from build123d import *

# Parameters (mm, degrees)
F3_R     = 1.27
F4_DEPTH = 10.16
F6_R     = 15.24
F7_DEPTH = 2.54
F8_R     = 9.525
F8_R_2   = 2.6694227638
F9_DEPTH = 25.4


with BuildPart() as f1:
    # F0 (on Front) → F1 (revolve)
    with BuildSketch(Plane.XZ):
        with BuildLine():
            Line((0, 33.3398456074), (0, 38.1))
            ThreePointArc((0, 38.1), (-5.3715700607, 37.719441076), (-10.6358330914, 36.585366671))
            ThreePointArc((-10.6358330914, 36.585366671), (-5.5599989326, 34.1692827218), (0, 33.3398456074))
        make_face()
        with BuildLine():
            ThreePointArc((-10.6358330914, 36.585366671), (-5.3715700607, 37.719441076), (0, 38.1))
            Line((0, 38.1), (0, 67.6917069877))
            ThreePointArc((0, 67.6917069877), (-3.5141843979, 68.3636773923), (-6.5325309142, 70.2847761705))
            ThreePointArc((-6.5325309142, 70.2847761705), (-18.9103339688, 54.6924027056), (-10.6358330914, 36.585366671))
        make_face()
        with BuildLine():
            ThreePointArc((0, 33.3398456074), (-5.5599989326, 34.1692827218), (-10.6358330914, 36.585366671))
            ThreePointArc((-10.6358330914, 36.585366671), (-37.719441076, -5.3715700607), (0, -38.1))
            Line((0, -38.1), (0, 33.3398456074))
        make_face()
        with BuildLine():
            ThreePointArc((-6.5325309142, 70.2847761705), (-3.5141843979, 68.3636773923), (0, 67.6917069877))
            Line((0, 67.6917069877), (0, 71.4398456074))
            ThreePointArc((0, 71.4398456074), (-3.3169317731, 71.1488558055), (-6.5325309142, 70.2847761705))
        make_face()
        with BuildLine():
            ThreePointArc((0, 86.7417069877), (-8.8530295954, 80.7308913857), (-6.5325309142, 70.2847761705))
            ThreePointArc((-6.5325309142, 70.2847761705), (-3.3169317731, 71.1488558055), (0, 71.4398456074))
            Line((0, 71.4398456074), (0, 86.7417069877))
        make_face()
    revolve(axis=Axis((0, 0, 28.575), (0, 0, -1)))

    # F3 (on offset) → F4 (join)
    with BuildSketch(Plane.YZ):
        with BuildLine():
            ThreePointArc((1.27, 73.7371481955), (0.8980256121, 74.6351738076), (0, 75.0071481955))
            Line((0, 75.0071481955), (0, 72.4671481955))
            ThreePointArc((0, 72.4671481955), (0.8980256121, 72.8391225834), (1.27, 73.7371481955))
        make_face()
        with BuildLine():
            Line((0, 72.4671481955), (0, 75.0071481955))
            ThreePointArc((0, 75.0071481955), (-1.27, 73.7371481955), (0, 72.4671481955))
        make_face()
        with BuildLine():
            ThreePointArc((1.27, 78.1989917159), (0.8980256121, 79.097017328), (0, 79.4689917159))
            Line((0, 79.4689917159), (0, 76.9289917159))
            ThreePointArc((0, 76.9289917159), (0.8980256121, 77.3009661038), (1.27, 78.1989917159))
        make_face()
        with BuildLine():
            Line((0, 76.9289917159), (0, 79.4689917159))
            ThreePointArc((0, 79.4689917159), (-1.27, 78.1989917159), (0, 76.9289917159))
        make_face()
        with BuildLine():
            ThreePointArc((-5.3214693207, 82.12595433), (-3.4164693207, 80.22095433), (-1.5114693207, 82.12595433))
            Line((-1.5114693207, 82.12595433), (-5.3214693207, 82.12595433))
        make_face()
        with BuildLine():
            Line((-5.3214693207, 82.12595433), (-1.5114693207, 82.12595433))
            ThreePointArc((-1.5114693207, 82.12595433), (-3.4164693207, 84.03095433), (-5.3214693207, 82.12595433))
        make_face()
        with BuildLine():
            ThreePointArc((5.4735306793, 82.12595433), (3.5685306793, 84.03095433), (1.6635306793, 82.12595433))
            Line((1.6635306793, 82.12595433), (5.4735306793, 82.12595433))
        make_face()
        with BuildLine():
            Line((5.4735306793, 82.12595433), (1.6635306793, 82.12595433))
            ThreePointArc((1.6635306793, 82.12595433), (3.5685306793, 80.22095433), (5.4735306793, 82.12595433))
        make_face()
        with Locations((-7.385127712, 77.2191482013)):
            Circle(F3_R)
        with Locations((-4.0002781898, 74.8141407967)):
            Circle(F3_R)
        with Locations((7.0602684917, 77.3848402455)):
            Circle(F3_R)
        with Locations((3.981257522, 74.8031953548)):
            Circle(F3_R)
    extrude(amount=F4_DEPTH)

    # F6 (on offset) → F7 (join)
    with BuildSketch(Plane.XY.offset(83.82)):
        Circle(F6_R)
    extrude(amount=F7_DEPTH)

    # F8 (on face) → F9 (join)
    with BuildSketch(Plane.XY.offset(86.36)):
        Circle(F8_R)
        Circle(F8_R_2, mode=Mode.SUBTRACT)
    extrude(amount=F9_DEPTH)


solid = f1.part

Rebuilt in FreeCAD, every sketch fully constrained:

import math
import FreeCAD as App
import Part
import Sketcher

V = App.Vector
Q = App.Units.Quantity

doc = App.newDocument("Part")
params = doc.addObject("Spreadsheet::Sheet", "Params")
for row, (alias, value) in enumerate([
    ("sketch1_radius", "1.5 in"),
    ("sketch1_radius2", "0.75 in"),
    ("sketch1_radius3", "0.375 in"),
    ("revolution_angle", "360 deg"),
    ("sketch2_diameter", "0.1 in"),
    ("sketch2_diameter2", "0.15 in"),
    ("pad1_length", "0.4 in"),
    ("sketch3_diameter", "1.2 in"),
    ("pad2_length", "0.1 in"),
    ("sketch4_diameter", "0.75 in"),
    ("pad3_length", "1 in"),
], start=1):
    params.set(f"A{row}", alias)
    params.set(f"B{row}", "=" + value)
    params.setAlias(f"B{row}", alias)

body = doc.addObject("PartDesign::Body", "Body")

# Sketch on XZ plane
sketch1 = body.newObject("Sketcher::SketchObject", "Sketch")
sketch1.AttachmentSupport = (doc.getObject("XZ_Plane"), [""])
sketch1.MapMode = "FlatFace"
sketch1.addGeometry([
    Part.ArcOfCircle(Part.Circle(V(0, 52, 0), V(0, 0, 1), 19), math.radians(110), math.radians(236)),
    Part.ArcOfCircle(Part.Circle(V(0, 0, 0), V(0, 0, 1), 38), math.radians(106), math.radians(270)),
    Part.LineSegment(V(0, -38, 0), V(0, 87, 0)),
    Part.ArcOfCircle(Part.Circle(V(0, 77, 0), V(0, 0, 1), 10), math.radians(90), math.radians(227)),
], False)
sketch1.addConstraint([
    Sketcher.Constraint("Coincident", 0, 2, 1, 1),
    Sketcher.Constraint("Coincident", 1, 2, 2, 1),
    Sketcher.Constraint("Coincident", 2, 2, 3, 1),
    Sketcher.Constraint("Coincident", 3, 2, 0, 1),
    Sketcher.Constraint("Vertical", 2),
    Sketcher.Constraint("Coincident", 1, 3, -1, 1),
    Sketcher.Constraint("PointOnObject", 0, 3, -2),
    Sketcher.Constraint("PointOnObject", 3, 3, -2),
    Sketcher.Constraint("PointOnObject", 1, 2, -2),
    Sketcher.Constraint("Radius", 1, Q("1.5 in")),
    Sketcher.Constraint("Radius", 0, Q("0.75 in")),
    Sketcher.Constraint("Radius", 3, Q("0.375 in")),
    Sketcher.Constraint("DistanceY", 2, 1, 2, 2, 124.841707),
    Sketcher.Constraint("DistanceX", 3, 2, -1, 1, 6.532531),
])
sketch1.setExpression("Constraints[9]", "Params.sketch1_radius")
sketch1.setExpression("Constraints[10]", "Params.sketch1_radius2")
sketch1.setExpression("Constraints[11]", "Params.sketch1_radius3")
revolution = body.newObject("PartDesign::Revolution", "Revolution")
revolution.Profile = sketch1
revolution.ReferenceAxis = (sketch1, ["V_Axis"])
revolution.setExpression("Angle", "Params.revolution_angle")

# Sketch on YZ plane
sketch2 = body.newObject("Sketcher::SketchObject", "Sketch001")
sketch2.AttachmentSupport = (doc.getObject("YZ_Plane"), [""])
sketch2.MapMode = "FlatFace"
sketch2.addGeometry([
    Part.ArcOfCircle(Part.Circle(V(0, 73.7, 0), V(0, 0, 1), 1.3), math.radians(0), math.radians(90)),  # 0
    Part.ArcOfCircle(Part.Circle(V(0, 73.7, 0), V(0, 0, 1), 1.3), math.radians(90), math.radians(270)),  # 1
    Part.ArcOfCircle(Part.Circle(V(0, 73.7, 0), V(0, 0, 1), 1.3), math.radians(-90), math.radians(0)),  # 2
    Part.ArcOfCircle(Part.Circle(V(0, 78.2, 0), V(0, 0, 1), 1.3), math.radians(0), math.radians(90)),  # 3
    Part.ArcOfCircle(Part.Circle(V(0, 78.2, 0), V(0, 0, 1), 1.3), math.radians(90), math.radians(270)),  # 4
    Part.ArcOfCircle(Part.Circle(V(0, 78.2, 0), V(0, 0, 1), 1.3), math.radians(-90), math.radians(0)),  # 5
    Part.Circle(V(-3.4, 82.1, 0), V(0, 0, 1), 1.9),  # 6
    Part.Circle(V(3.6, 82.1, 0), V(0, 0, 1), 1.9),  # 7
    Part.Circle(V(-7.4, 77.2, 0), V(0, 0, 1), 1.3),  # 8
    Part.Circle(V(-4, 74.8, 0), V(0, 0, 1), 1.3),  # 9
    Part.Circle(V(7.1, 77.4, 0), V(0, 0, 1), 1.3),  # 10
    Part.Circle(V(4, 74.8, 0), V(0, 0, 1), 1.3),  # 11
], False)
sketch2.addConstraint([
    Sketcher.Constraint("Tangent", 0, 2, 1, 1),
    Sketcher.Constraint("Tangent", 1, 2, 2, 1),
    Sketcher.Constraint("Tangent", 2, 2, 0, 1),
    Sketcher.Constraint("Tangent", 3, 2, 4, 1),
    Sketcher.Constraint("Tangent", 4, 2, 5, 1),
    Sketcher.Constraint("Tangent", 5, 2, 3, 1),
    Sketcher.Constraint("Equal", 2, 3),
    Sketcher.Constraint("Equal", 6, 7),
    Sketcher.Constraint("Equal", 5, 8),
    Sketcher.Constraint("Equal", 8, 9),
    Sketcher.Constraint("Equal", 9, 10),
    Sketcher.Constraint("Equal", 10, 11),
    Sketcher.Constraint("PointOnObject", 0, 3, -2),
    Sketcher.Constraint("PointOnObject", 3, 3, -2),
    Sketcher.Constraint("PointOnObject", 0, 2, -2),
    Sketcher.Constraint("PointOnObject", 1, 2, -2),
    Sketcher.Constraint("PointOnObject", 3, 2, -2),
    Sketcher.Constraint("PointOnObject", 4, 2, -2),
    Sketcher.Constraint("Horizontal", 6, 3, 7, 3),
    Sketcher.Constraint("Horizontal", 1, 3, 2, 2),
    Sketcher.Constraint("Horizontal", 4, 3, 5, 2),
    Sketcher.Constraint("Diameter", 8, Q("0.1 in")),
    Sketcher.Constraint("Diameter", 6, Q("0.15 in")),
    Sketcher.Constraint("DistanceX", 6, 3, 7, 3, Q("0.275 in")),
    Sketcher.Constraint("DistanceY", 2, 3, 8, 3, 3.482),
    Sketcher.Constraint("DistanceY", -1, 1, 0, 3, 73.737148),
    Sketcher.Constraint("DistanceY", -1, 1, 3, 3, 78.198992),
    Sketcher.Constraint("DistanceX", 6, 3, -1, 1, 3.416469),
    Sketcher.Constraint("DistanceX", 9, 3, -1, 1, 4.000278),
    Sketcher.Constraint("DistanceY", -1, 1, 9, 3, 74.814141),
    Sketcher.Constraint("DistanceX", -1, 1, 10, 3, 7.060268),
    Sketcher.Constraint("DistanceY", -1, 1, 10, 3, 77.38484),
    Sketcher.Constraint("DistanceX", 8, 3, 6, 3, 3.968658),
    Sketcher.Constraint("DistanceX", 11, 3, 10, 3, 3.079011),
    Sketcher.Constraint("DistanceY", -1, 1, 6, 3, 82.125954),
    Sketcher.Constraint("DistanceY", -1, 1, 11, 3, 74.803195),
])
sketch2.setExpression("Constraints[21]", "Params.sketch2_diameter")
sketch2.setExpression("Constraints[22]", "Params.sketch2_diameter2")
pad1 = body.newObject("PartDesign::Pad", "Pad")
pad1.Profile = sketch2
pad1.setExpression("Length", "Params.pad1_length")

# Sketch on XY plane
sketch3 = body.newObject("Sketcher::SketchObject", "Sketch002")
sketch3.AttachmentSupport = (doc.getObject("XY_Plane"), [""])
sketch3.MapMode = "FlatFace"
sketch3.AttachmentOffset = App.Placement(V(0, 0, 3.3 * 25.4), App.Rotation())
sketch3.addGeometry(Part.Circle(V(0, 0, 0), V(0, 0, 1), 15), False)
sketch3.addConstraint([
    Sketcher.Constraint("Coincident", 0, 3, -1, 1),
    Sketcher.Constraint("Diameter", 0, Q("1.2 in")),
])
sketch3.setExpression("Constraints[1]", "Params.sketch3_diameter")
pad2 = body.newObject("PartDesign::Pad", "Pad001")
pad2.Profile = sketch3
pad2.setExpression("Length", "Params.pad2_length")

# Sketch on XY plane
sketch4 = body.newObject("Sketcher::SketchObject", "Sketch003")
sketch4.AttachmentSupport = (doc.getObject("XY_Plane"), [""])
sketch4.MapMode = "FlatFace"
sketch4.AttachmentOffset = App.Placement(V(0, 0, 3.4 * 25.4), App.Rotation())
sketch4.addGeometry([
    Part.Circle(V(0, 0, 0), V(0, 0, 1), 9.5),
    Part.Circle(V(0, 0, 0), V(0, 0, 1), 2.7),
], False)
sketch4.addConstraint([
    Sketcher.Constraint("Coincident", 0, 3, -1, 1),
    Sketcher.Constraint("Coincident", 1, 3, -1, 1),
    Sketcher.Constraint("Diameter", 0, Q("0.75 in")),
    Sketcher.Constraint("Diameter", 1, 5.338846),
])
sketch4.setExpression("Constraints[2]", "Params.sketch4_diameter")
pad3 = body.newObject("PartDesign::Pad", "Pad002")
pad3.Profile = sketch4
pad3.setExpression("Length", "Params.pad3_length")

doc.recompute()
